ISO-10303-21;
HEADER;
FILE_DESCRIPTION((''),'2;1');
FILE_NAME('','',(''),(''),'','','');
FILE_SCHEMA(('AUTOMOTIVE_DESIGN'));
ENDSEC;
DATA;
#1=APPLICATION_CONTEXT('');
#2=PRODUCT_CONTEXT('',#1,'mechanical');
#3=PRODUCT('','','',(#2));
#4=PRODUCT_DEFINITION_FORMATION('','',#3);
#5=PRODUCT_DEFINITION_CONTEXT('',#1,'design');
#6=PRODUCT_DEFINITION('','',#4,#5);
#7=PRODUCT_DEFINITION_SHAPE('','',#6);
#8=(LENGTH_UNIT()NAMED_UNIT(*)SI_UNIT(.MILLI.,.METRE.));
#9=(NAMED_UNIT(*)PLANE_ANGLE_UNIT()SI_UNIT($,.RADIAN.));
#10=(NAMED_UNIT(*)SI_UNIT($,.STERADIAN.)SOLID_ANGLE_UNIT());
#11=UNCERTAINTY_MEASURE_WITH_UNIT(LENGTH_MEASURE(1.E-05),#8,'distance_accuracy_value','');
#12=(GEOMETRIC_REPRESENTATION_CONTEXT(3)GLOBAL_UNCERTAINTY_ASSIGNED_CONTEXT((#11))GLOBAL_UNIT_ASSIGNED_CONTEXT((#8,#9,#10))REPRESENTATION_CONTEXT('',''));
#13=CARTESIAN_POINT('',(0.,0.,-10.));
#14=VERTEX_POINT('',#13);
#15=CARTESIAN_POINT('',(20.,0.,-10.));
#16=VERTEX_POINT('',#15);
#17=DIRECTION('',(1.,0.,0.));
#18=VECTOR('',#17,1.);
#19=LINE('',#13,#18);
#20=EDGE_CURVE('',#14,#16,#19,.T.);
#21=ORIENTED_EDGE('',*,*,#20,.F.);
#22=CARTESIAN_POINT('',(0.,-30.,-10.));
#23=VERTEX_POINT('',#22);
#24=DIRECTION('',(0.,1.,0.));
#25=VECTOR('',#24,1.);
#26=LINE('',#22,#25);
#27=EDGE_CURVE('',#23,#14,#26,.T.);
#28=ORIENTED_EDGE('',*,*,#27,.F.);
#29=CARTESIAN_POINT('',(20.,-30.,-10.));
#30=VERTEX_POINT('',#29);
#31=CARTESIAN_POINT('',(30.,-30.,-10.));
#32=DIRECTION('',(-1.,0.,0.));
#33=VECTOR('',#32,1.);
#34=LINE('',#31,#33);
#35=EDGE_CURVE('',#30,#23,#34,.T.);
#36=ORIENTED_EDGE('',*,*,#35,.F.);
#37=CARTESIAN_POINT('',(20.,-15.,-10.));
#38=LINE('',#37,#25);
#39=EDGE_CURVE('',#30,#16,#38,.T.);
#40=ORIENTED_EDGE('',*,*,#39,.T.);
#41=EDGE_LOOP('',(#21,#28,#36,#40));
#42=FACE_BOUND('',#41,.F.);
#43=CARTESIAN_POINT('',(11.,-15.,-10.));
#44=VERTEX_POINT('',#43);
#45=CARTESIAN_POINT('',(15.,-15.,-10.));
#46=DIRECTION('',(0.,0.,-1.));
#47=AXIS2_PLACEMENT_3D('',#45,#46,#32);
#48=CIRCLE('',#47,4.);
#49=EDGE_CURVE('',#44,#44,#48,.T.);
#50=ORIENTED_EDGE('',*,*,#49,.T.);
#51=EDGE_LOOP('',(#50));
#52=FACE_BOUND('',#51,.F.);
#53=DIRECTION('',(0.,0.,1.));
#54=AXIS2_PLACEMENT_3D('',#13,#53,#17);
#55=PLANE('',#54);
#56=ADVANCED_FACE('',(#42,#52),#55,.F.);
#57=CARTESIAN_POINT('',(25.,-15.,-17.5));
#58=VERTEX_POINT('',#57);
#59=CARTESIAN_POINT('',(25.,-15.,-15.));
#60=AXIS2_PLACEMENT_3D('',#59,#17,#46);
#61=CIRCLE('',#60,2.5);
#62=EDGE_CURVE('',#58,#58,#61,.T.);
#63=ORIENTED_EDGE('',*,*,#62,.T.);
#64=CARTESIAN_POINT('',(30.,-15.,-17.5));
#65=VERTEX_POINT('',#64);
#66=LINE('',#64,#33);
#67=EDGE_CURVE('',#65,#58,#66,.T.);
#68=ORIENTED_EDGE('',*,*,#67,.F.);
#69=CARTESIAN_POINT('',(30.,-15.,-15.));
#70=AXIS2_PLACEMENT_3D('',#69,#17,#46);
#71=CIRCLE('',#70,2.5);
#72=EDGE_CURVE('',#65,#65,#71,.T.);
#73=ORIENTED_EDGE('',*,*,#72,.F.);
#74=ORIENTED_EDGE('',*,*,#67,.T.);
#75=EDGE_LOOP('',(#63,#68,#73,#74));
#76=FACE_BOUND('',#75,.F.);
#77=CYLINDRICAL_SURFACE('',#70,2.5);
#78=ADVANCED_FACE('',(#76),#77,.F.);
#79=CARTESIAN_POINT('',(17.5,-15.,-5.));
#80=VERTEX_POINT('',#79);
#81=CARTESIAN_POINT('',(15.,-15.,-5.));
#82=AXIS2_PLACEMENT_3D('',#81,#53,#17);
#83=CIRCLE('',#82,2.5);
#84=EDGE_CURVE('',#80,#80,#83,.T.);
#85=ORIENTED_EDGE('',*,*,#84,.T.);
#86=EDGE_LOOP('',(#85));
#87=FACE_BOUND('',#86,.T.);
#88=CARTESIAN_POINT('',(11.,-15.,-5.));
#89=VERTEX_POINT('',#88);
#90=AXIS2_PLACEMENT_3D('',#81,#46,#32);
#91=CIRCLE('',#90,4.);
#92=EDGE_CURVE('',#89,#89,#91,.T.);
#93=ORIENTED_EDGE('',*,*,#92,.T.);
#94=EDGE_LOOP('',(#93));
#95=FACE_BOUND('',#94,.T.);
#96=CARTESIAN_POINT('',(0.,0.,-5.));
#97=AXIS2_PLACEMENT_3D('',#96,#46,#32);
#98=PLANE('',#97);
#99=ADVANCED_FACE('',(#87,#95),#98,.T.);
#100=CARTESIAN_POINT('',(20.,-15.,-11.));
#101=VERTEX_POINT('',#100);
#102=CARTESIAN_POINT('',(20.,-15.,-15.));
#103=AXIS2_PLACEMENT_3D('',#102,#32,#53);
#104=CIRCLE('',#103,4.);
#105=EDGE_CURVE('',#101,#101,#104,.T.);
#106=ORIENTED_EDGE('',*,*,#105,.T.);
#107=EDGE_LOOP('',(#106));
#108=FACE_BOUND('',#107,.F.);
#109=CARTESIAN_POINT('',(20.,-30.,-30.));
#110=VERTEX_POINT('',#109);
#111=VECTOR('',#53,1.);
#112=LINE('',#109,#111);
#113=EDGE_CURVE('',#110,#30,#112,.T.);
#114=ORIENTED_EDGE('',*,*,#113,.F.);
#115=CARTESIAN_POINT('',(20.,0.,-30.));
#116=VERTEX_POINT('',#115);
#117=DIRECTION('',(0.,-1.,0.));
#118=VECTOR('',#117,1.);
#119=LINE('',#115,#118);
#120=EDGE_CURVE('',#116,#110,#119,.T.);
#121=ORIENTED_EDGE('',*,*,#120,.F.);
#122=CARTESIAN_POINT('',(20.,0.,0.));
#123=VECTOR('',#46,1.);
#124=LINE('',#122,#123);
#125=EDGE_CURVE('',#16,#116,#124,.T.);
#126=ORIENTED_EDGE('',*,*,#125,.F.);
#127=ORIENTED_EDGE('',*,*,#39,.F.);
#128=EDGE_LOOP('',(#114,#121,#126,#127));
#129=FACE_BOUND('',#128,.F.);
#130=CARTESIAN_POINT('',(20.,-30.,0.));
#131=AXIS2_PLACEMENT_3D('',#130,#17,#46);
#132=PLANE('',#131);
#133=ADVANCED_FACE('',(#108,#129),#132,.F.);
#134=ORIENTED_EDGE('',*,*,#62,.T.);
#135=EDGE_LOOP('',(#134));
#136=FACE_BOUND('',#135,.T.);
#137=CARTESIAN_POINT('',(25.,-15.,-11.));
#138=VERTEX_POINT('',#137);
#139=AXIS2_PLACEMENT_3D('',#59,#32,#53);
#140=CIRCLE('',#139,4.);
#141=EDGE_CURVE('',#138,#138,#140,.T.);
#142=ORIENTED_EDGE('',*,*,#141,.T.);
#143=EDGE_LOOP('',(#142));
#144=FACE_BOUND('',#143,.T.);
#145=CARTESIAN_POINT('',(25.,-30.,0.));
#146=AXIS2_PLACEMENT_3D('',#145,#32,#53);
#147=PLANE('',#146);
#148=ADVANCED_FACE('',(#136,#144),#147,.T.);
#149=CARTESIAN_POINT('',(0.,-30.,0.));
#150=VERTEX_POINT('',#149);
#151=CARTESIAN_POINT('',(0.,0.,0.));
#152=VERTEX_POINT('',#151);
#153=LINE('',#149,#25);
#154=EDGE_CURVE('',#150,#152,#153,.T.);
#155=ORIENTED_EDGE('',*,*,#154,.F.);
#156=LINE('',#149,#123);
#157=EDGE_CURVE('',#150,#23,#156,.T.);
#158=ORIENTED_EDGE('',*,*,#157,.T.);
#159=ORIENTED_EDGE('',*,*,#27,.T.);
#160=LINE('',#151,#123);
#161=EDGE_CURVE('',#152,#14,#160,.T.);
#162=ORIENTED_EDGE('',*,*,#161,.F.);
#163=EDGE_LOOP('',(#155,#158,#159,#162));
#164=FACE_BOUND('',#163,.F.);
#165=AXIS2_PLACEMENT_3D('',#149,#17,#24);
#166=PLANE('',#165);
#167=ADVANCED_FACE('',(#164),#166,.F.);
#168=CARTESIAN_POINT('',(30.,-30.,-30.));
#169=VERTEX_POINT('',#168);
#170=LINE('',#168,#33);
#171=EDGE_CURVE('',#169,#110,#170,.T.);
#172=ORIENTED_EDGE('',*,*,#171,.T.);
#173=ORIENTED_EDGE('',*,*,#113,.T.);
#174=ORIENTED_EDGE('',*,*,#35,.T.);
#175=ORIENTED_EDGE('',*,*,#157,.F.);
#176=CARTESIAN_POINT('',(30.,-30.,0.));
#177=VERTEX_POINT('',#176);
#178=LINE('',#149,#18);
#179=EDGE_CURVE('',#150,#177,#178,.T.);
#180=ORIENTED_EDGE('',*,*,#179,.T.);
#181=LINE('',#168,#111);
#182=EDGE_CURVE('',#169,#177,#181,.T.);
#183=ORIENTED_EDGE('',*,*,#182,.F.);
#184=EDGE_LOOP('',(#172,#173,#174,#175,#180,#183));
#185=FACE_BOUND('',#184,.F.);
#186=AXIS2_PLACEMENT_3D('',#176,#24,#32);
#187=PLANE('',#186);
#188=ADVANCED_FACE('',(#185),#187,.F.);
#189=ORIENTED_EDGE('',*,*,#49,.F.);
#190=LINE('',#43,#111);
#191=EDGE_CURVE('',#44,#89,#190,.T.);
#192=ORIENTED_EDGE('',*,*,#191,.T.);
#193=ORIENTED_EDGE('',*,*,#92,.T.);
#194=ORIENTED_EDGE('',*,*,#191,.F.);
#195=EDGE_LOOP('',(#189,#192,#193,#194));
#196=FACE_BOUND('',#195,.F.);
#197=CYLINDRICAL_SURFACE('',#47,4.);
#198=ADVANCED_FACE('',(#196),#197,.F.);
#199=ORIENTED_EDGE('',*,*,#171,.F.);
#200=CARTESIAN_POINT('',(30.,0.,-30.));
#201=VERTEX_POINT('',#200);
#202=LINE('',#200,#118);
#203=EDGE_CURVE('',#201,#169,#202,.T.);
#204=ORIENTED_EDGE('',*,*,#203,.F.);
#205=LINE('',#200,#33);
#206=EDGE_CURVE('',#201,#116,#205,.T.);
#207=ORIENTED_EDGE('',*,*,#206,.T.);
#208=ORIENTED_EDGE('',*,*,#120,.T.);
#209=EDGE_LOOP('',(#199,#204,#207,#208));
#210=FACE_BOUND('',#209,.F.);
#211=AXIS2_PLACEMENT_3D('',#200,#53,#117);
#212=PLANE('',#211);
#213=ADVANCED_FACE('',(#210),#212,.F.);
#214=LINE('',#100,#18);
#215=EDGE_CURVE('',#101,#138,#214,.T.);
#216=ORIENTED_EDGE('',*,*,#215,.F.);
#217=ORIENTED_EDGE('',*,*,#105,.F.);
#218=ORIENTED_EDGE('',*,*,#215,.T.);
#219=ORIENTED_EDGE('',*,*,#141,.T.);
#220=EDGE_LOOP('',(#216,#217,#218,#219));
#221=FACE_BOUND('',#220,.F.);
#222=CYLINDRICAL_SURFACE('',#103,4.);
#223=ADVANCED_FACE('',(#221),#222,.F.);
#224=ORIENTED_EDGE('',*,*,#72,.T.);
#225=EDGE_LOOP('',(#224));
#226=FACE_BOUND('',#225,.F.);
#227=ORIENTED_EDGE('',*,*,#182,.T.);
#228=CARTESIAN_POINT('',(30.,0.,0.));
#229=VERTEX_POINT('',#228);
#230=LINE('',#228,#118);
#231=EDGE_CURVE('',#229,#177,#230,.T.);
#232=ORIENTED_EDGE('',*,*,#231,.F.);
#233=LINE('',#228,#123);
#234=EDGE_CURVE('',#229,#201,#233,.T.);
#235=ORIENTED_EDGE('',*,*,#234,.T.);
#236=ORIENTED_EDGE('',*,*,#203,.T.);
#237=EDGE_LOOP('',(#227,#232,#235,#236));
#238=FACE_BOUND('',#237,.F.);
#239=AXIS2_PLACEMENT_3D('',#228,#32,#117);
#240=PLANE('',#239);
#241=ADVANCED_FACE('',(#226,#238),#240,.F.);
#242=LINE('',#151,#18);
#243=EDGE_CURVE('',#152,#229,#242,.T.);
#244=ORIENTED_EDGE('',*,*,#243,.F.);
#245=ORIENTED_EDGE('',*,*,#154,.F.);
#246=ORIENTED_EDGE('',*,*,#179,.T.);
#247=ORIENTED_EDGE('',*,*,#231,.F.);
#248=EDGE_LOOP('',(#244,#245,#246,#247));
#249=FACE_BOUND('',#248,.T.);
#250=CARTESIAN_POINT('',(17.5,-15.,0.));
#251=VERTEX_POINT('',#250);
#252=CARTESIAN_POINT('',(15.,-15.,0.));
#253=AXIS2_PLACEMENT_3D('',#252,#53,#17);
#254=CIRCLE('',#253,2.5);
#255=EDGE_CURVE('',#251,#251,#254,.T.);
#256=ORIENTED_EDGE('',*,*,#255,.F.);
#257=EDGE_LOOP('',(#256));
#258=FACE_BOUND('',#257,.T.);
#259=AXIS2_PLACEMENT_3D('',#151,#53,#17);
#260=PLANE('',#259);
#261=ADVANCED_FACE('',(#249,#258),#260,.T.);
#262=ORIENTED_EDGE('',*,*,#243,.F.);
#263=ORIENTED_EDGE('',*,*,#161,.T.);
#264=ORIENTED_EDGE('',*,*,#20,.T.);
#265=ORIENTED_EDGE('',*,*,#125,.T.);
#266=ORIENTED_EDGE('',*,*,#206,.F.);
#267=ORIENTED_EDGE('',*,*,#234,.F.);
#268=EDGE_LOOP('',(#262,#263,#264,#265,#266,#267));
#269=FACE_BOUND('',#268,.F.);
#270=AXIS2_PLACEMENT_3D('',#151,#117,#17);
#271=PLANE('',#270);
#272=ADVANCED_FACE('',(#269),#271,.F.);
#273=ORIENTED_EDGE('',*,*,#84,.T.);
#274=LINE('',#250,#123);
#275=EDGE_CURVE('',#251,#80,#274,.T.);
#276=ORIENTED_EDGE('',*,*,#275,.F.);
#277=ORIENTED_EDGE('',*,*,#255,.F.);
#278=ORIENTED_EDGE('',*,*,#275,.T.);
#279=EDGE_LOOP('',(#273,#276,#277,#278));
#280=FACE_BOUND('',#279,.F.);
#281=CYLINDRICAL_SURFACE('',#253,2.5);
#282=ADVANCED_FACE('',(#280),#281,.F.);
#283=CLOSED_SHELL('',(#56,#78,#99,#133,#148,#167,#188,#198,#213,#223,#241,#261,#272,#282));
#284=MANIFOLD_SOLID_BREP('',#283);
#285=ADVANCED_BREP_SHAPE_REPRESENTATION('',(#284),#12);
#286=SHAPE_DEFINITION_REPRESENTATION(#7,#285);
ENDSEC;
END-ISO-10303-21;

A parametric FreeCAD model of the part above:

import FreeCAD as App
import Part
import Sketcher

V = App.Vector
Q = App.Units.Quantity

doc = App.newDocument("Part")
params = doc.addObject("Spreadsheet::Sheet", "Params")
for row, (alias, value) in enumerate([
    ("sketch1_width", "30 mm"),
    ("pad1_length", "10 mm"),
    ("sketch2_width", "30 mm"),
    ("pad2_length", "10 mm"),
    ("sketch3_diameter", "5 mm"),
    ("pocket1_length", "10 mm"),
    ("sketch4_diameter", "5 mm"),
    ("pocket2_length", "10 mm"),
    ("sketch5_diameter", "8 mm"),
    ("pocket3_length", "5 mm"),
    ("sketch6_diameter", "8 mm"),
    ("pocket4_length", "5 mm"),
], start=1):
    params.set(f"A{row}", alias)
    params.set(f"B{row}", "=" + value)
    params.setAlias(f"B{row}", alias)

body = doc.addObject("PartDesign::Body", "Body")

sketch1 = doc.addObject("Sketcher::SketchObject", "Sketch")
body.addObject(sketch1)
sketch1.AttachmentSupport = (doc.XY_Plane, [""])
sketch1.MapMode = "FlatFace"
sketch1.addGeometry([
    Part.LineSegment(V(30, 0, 0), V(0, 0, 0)),
    Part.LineSegment(V(0, 0, 0), V(0, -30, 0)),
    Part.LineSegment(V(0, -30, 0), V(30, -30, 0)),
    Part.LineSegment(V(30, -30, 0), V(30, 0, 0)),
], False)
sketch1.addConstraint([
    Sketcher.Constraint("Coincident", 0, 2, 1, 1),
    Sketcher.Constraint("Coincident", 1, 2, 2, 1),
    Sketcher.Constraint("Coincident", 2, 2, 3, 1),
    Sketcher.Constraint("Coincident", 3, 2, 0, 1),
    Sketcher.Constraint("Horizontal", 0),
    Sketcher.Constraint("Vertical", 1),
    Sketcher.Constraint("Horizontal", 2),
    Sketcher.Constraint("Vertical", 3),
    Sketcher.Constraint("Coincident", 0, 2, -1, 1),
    Sketcher.Constraint("Equal", 2, 1),
    Sketcher.Constraint("DistanceX", 0, 2, 0, 1, Q("30 mm")),
])
sketch1.setExpression("Constraints[10]", "Params.sketch1_width")
pad1 = doc.addObject("PartDesign::Pad", "Pad")
body.addObject(pad1)
pad1.Profile = sketch1
pad1.setExpression("Length", "Params.pad1_length")
pad1.Reversed = True

sketch2 = doc.addObject("Sketcher::SketchObject", "Sketch001")
body.addObject(sketch2)
sketch2.AttachmentSupport = (doc.YZ_Plane, [""])
sketch2.MapMode = "FlatFace"
sketch2.AttachmentOffset = App.Placement(V(0, 0, 30), App.Rotation())
sketch2.addGeometry([
    Part.LineSegment(V(0, -30, 0), V(0, 0, 0)),
    Part.LineSegment(V(0, 0, 0), V(-30, 0, 0)),
    Part.LineSegment(V(-30, 0, 0), V(-30, -30, 0)),
    Part.LineSegment(V(-30, -30, 0), V(0, -30, 0)),
], False)
sketch2.addConstraint([
    Sketcher.Constraint("Coincident", 0, 2, 1, 1),
    Sketcher.Constraint("Coincident", 1, 2, 2, 1),
    Sketcher.Constraint("Coincident", 2, 2, 3, 1),
    Sketcher.Constraint("Coincident", 3, 2, 0, 1),
    Sketcher.Constraint("Vertical", 0),
    Sketcher.Constraint("Horizontal", 1),
    Sketcher.Constraint("Vertical", 2),
    Sketcher.Constraint("Horizontal", 3),
    Sketcher.Constraint("Coincident", 0, 2, -1, 1),
    Sketcher.Constraint("Equal", 3, 0),
    Sketcher.Constraint("DistanceX", 1, 2, 1, 1, Q("30 mm")),
])
sketch2.setExpression("Constraints[10]", "Params.sketch2_width")
pad2 = doc.addObject("PartDesign::Pad", "Pad001")
body.addObject(pad2)
pad2.Profile = sketch2
pad2.setExpression("Length", "Params.pad2_length")
pad2.Reversed = True

sketch3 = doc.addObject("Sketcher::SketchObject", "Sketch002")
body.addObject(sketch3)
sketch3.AttachmentSupport = (doc.XY_Plane, [""])
sketch3.MapMode = "FlatFace"
sketch3.addGeometry(Part.Circle(V(15, -15, 0), V(0, 0, 1), 2.5), False)
sketch3.addConstraint([
    Sketcher.Constraint("Diameter", 0, Q("5 mm")),
    Sketcher.Constraint("DistanceX", -1, 1, 0, 3, Q("15 mm")),
    Sketcher.Constraint("DistanceY", 0, 3, -1, 1, Q("15 mm")),
])
sketch3.setExpression("Constraints[0]", "Params.sketch3_diameter")
pocket1 = doc.addObject("PartDesign::Pocket", "Pocket")
body.addObject(pocket1)
pocket1.Profile = sketch3
pocket1.setExpression("Length", "Params.pocket1_length")

sketch4 = doc.addObject("Sketcher::SketchObject", "Sketch003")
body.addObject(sketch4)
sketch4.AttachmentSupport = (doc.YZ_Plane, [""])
sketch4.MapMode = "FlatFace"
sketch4.AttachmentOffset = App.Placement(V(0, 0, 30), App.Rotation())
sketch4.addGeometry(Part.Circle(V(-15, -15, 0), V(0, 0, 1), 2.5), False)
sketch4.addConstraint([
    Sketcher.Constraint("Diameter", 0, Q("5 mm")),
    Sketcher.Constraint("DistanceX", 0, 3, -1, 1, Q("15 mm")),
    Sketcher.Constraint("DistanceY", 0, 3, -1, 1, Q("15 mm")),
])
sketch4.setExpression("Constraints[0]", "Params.sketch4_diameter")
pocket2 = doc.addObject("PartDesign::Pocket", "Pocket001")
body.addObject(pocket2)
pocket2.Profile = sketch4
pocket2.setExpression("Length", "Params.pocket2_length")

sketch5 = doc.addObject("Sketcher::SketchObject", "Sketch004")
body.addObject(sketch5)
sketch5.AttachmentSupport = (doc.XY_Plane, [""])
sketch5.MapMode = "FlatFace"
sketch5.AttachmentOffset = App.Placement(V(0, 0, -10), App.Rotation())
sketch5.addGeometry(Part.Circle(V(15, -15, 0), V(0, 0, 1), 4), False)
sketch5.addConstraint([
    Sketcher.Constraint("Diameter", 0, Q("8 mm")),
    Sketcher.Constraint("DistanceX", -1, 1, 0, 3, Q("15 mm")),
    Sketcher.Constraint("DistanceY", 0, 3, -1, 1, Q("15 mm")),
])
sketch5.setExpression("Constraints[0]", "Params.sketch5_diameter")
pocket3 = doc.addObject("PartDesign::Pocket", "Pocket002")
body.addObject(pocket3)
pocket3.Profile = sketch5
pocket3.setExpression("Length", "Params.pocket3_length")
pocket3.Reversed = True

sketch6 = doc.addObject("Sketcher::SketchObject", "Sketch005")
body.addObject(sketch6)
sketch6.AttachmentSupport = (doc.YZ_Plane, [""])
sketch6.MapMode = "FlatFace"
sketch6.AttachmentOffset = App.Placement(V(0, 0, 20), App.Rotation())
sketch6.addGeometry(Part.Circle(V(-15, -15, 0), V(0, 0, 1), 4), False)
sketch6.addConstraint([
    Sketcher.Constraint("Diameter", 0, Q("8 mm")),
    Sketcher.Constraint("DistanceX", 0, 3, -1, 1, Q("15 mm")),
    Sketcher.Constraint("DistanceY", 0, 3, -1, 1, Q("15 mm")),
])
sketch6.setExpression("Constraints[0]", "Params.sketch6_diameter")
pocket4 = doc.addObject("PartDesign::Pocket", "Pocket003")
body.addObject(pocket4)
pocket4.Profile = sketch6
pocket4.setExpression("Length", "Params.pocket4_length")
pocket4.Reversed = True

doc.recompute()
